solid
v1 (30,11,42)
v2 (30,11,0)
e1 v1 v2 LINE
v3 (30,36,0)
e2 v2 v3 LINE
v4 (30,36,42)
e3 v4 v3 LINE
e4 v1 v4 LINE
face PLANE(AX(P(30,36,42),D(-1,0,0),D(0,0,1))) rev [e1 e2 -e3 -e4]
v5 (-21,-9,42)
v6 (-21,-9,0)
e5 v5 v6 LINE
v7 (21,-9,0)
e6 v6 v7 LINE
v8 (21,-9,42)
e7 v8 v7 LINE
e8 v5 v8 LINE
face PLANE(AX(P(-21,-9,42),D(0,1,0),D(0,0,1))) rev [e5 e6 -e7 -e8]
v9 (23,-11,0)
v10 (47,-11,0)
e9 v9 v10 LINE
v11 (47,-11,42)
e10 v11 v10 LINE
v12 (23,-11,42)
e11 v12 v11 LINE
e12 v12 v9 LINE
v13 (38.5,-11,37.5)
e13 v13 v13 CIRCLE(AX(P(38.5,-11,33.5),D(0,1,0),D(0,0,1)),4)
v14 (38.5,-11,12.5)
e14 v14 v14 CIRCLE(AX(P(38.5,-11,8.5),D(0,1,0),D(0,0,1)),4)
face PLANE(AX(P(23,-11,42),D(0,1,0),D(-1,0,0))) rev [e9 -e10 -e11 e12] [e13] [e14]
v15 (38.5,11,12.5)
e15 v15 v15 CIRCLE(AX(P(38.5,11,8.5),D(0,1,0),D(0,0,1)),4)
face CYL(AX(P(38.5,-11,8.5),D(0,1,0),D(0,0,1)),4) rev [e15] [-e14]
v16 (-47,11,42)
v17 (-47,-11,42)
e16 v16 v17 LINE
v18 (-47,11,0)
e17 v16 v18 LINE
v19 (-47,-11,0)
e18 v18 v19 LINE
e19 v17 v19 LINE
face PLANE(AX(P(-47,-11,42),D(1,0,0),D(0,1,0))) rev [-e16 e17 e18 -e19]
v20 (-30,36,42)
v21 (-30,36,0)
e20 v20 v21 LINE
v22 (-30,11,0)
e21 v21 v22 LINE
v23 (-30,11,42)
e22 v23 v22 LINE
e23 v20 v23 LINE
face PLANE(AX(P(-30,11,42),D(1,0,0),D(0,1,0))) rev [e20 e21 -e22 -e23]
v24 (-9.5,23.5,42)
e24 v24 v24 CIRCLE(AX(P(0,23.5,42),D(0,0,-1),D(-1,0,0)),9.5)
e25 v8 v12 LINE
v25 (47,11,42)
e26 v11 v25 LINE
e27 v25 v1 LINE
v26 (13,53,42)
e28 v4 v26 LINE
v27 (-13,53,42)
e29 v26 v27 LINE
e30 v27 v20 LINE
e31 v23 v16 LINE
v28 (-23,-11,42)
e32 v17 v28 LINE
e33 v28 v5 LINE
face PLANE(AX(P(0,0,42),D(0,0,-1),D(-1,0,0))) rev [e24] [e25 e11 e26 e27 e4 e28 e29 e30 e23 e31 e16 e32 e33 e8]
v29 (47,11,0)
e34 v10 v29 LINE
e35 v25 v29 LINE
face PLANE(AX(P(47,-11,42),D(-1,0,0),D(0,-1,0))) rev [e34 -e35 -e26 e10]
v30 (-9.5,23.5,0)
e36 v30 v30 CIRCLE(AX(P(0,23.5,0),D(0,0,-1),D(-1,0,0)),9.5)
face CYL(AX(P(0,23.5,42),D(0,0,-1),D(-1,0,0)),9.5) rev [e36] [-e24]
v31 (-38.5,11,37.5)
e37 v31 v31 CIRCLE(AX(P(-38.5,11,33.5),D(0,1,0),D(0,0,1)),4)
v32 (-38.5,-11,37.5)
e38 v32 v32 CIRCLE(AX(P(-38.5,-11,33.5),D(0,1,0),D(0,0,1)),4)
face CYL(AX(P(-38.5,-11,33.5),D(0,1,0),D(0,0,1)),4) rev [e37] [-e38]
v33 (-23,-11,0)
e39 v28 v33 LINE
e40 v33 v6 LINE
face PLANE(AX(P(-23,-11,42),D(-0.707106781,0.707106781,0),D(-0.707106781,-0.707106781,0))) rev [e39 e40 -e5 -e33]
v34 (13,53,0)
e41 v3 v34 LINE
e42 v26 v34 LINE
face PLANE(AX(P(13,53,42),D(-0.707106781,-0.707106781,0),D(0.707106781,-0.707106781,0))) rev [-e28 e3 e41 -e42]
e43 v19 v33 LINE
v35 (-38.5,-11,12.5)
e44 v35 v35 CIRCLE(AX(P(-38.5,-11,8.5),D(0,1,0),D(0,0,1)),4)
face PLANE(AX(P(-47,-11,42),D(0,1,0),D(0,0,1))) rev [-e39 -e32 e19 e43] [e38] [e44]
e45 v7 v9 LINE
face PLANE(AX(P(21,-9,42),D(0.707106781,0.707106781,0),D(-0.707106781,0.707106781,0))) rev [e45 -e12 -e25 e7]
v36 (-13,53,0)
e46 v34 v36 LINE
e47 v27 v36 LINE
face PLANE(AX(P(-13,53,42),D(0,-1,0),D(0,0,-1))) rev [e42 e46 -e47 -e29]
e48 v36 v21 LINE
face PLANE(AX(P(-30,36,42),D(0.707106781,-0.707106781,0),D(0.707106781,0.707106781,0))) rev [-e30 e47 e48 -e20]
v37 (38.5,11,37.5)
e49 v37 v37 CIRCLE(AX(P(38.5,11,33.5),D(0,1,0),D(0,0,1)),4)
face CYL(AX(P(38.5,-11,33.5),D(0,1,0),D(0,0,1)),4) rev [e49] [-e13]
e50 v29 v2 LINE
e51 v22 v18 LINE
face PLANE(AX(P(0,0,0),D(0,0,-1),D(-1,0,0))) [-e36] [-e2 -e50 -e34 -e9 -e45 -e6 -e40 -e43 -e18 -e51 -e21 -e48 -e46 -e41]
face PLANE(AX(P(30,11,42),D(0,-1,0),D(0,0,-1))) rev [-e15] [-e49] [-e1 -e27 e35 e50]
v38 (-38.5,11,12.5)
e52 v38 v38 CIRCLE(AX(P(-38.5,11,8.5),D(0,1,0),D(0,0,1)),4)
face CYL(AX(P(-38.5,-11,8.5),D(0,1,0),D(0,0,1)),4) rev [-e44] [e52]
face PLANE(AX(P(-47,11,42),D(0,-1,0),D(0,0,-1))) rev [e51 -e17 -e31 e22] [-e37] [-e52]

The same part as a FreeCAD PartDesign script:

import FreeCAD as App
import Part
import Sketcher
from FreeCAD import Vector

doc = App.newDocument("Part")
params = doc.addObject("Spreadsheet::Sheet", "Params")
for row, (alias, value) in enumerate([
    ("sketch1_width", "17 mm"),
    ("sketch1_width2", "24 mm"),
    ("sketch1_width3", "42 mm"),
    ("sketch1_width4", "26 mm"),
    ("sketch1_height", "22 mm"),
    ("pad1_length", "42 mm"),
    ("sketch2_diameter", "19 mm"),
    ("pocket1_length", "42 mm"),
    ("sketch3_diameter", "8 mm"),
    ("pocket2_length", "22 mm"),
], start=1):
    params.set(f"A{row}", alias)
    params.set(f"B{row}", "=" + value)
    params.setAlias(f"B{row}", alias)

body = doc.addObject("PartDesign::Body", "Body")

sketch1 = body.newObject("Sketcher::SketchObject", "Sketch")
sketch1.AttachmentSupport = (doc.getObject("XY_Plane"), [""])
sketch1.MapMode = "FlatFace"
sketch1.addGeometry([
    Part.LineSegment(Vector(-30, 11, 0), Vector(-47, 11, 0)),
    Part.LineSegment(Vector(-47, 11, 0), Vector(-47, -11, 0)),
    Part.LineSegment(Vector(-47, -11, 0), Vector(-23, -11, 0)),
    Part.LineSegment(Vector(-23, -11, 0), Vector(-21, -9, 0)),
    Part.LineSegment(Vector(-21, -9, 0), Vector(21, -9, 0)),
    Part.LineSegment(Vector(21, -9, 0), Vector(23, -11, 0)),
    Part.LineSegment(Vector(23, -11, 0), Vector(47, -11, 0)),
    Part.LineSegment(Vector(47, -11, 0), Vector(47, 11, 0)),
    Part.LineSegment(Vector(47, 11, 0), Vector(30, 11, 0)),
    Part.LineSegment(Vector(30, 11, 0), Vector(30, 36, 0)),
    Part.LineSegment(Vector(30, 36, 0), Vector(13, 53, 0)),
    Part.LineSegment(Vector(13, 53, 0), Vector(-13, 53, 0)),
    Part.LineSegment(Vector(-13, 53, 0), Vector(-30, 36, 0)),
    Part.LineSegment(Vector(-30, 36, 0), Vector(-30, 11, 0)),
], False)
sketch1.addConstraint([
    Sketcher.Constraint("Coincident", 0, 2, 1, 1),
    Sketcher.Constraint("Coincident", 1, 2, 2, 1),
    Sketcher.Constraint("Coincident", 2, 2, 3, 1),
    Sketcher.Constraint("Coincident", 3, 2, 4, 1),
    Sketcher.Constraint("Coincident", 4, 2, 5, 1),
    Sketcher.Constraint("Coincident", 5, 2, 6, 1),
    Sketcher.Constraint("Coincident", 6, 2, 7, 1),
    Sketcher.Constraint("Coincident", 7, 2, 8, 1),
    Sketcher.Constraint("Coincident", 8, 2, 9, 1),
    Sketcher.Constraint("Coincident", 9, 2, 10, 1),
    Sketcher.Constraint("Coincident", 10, 2, 11, 1),
    Sketcher.Constraint("Coincident", 11, 2, 12, 1),
    Sketcher.Constraint("Coincident", 12, 2, 13, 1),
    Sketcher.Constraint("Coincident", 13, 2, 0, 1),
    Sketcher.Constraint("Horizontal", 0),
    Sketcher.Constraint("Vertical", 1),
    Sketcher.Constraint("Horizontal", 2),
    Sketcher.Constraint("Horizontal", 4),
    Sketcher.Constraint("Horizontal", 6),
    Sketcher.Constraint("Vertical", 7),
    Sketcher.Constraint("Horizontal", 8),
    Sketcher.Constraint("Vertical", 9),
    Sketcher.Constraint("Horizontal", 11),
    Sketcher.Constraint("Vertical", 13),
    Sketcher.Constraint("Symmetric", 0, 2, 6, 2, -1, 1),
    Sketcher.Constraint("Symmetric", 2, 2, 5, 2, -2),
    Sketcher.Constraint("Symmetric", 9, 2, 12, 2, -2),
    Sketcher.Constraint("Perpendicular", 3, 5),
    Sketcher.Constraint("Parallel", 5, 10),
    Sketcher.Constraint("Perpendicular", 10, 12),
    Sketcher.Constraint("Horizontal", 0, 2, 7, 2),
    Sketcher.Constraint("Equal", 3, 5),
    Sketcher.Constraint("DistanceX", 0, 2, 0, 1, 17.0),
    Sketcher.Constraint("DistanceX", 2, 1, 2, 2, 24.0),
    Sketcher.Constraint("DistanceX", 4, 1, 4, 2, 42.0),
    Sketcher.Constraint("DistanceX", 11, 2, 11, 1, 26.0),
    Sketcher.Constraint("DistanceY", 1, 2, 1, 1, 22.0),
    Sketcher.Constraint("DistanceY", 9, 1, 9, 2, 25.0),
    Sketcher.Constraint("DistanceX", 0, 2, -1, 1, 47.0),
])
sketch1.setExpression("Constraints[32]", "Params.sketch1_width")
sketch1.setExpression("Constraints[33]", "Params.sketch1_width2")
sketch1.setExpression("Constraints[34]", "Params.sketch1_width3")
sketch1.setExpression("Constraints[35]", "Params.sketch1_width4")
sketch1.setExpression("Constraints[36]", "Params.sketch1_height")
pad1 = body.newObject("PartDesign::Pad", "Pad")
pad1.Profile = sketch1
pad1.setExpression("Length", "Params.pad1_length")

sketch2 = body.newObject("Sketcher::SketchObject", "Sketch001")
sketch2.AttachmentSupport = (doc.getObject("XY_Plane"), [""])
sketch2.MapMode = "FlatFace"
sketch2.addGeometry(Part.Circle(Vector(0, 24, 0), Vector(0, 0, 1), 10), False)
sketch2.addConstraint([
    Sketcher.Constraint("PointOnObject", 0, 3, -2),
    Sketcher.Constraint("Diameter", 0, 19.0),
    Sketcher.Constraint("DistanceY", -1, 1, 0, 3, 23.5),
])
sketch2.setExpression("Constraints[1]", "Params.sketch2_diameter")
pocket1 = body.newObject("PartDesign::Pocket", "Pocket")
pocket1.Profile = sketch2
pocket1.setExpression("Length", "Params.pocket1_length")
pocket1.Reversed = True

sketch3 = body.newObject("Sketcher::SketchObject", "Sketch002")
sketch3.AttachmentSupport = (doc.getObject("XZ_Plane"), [""])
sketch3.MapMode = "FlatFace"
sketch3.AttachmentOffset = App.Placement(Vector(0, 0, -11), App.Rotation())
sketch3.addGeometry([
    Part.Circle(Vector(-38.5, 8.5, 0), Vector(0, 0, 1), 4),
    Part.Circle(Vector(-38.5, 33.5, 0), Vector(0, 0, 1), 4),
    Part.Circle(Vector(38.5, 33.5, 0), Vector(0, 0, 1), 4),
    Part.Circle(Vector(38.5, 8.5, 0), Vector(0, 0, 1), 4),
], False)
sketch3.addConstraint([
    Sketcher.Constraint("Equal", 0, 1),
    Sketcher.Constraint("Equal", 1, 2),
    Sketcher.Constraint("Equal", 2, 3),
    Sketcher.Constraint("Symmetric", 1, 3, 2, 3, -2),
    Sketcher.Constraint("Symmetric", 0, 3, 3, 3, -2),
    Sketcher.Constraint("Vertical", 0, 3, 1, 3),
    Sketcher.Constraint("Diameter", 0, 8.0),
    Sketcher.Constraint("DistanceY", 0, 3, 1, 3, 25.0),
    Sketcher.Constraint("DistanceX", 1, 3, 2, 3, 77.0),
    Sketcher.Constraint("DistanceY", -1, 1, 0, 3, 8.5),
])
sketch3.setExpression("Constraints[6]", "Params.sketch3_diameter")
pocket2 = body.newObject("PartDesign::Pocket", "Pocket001")
pocket2.Profile = sketch3
pocket2.setExpression("Length", "Params.pocket2_length")
pocket2.Reversed = True

doc.recompute()
